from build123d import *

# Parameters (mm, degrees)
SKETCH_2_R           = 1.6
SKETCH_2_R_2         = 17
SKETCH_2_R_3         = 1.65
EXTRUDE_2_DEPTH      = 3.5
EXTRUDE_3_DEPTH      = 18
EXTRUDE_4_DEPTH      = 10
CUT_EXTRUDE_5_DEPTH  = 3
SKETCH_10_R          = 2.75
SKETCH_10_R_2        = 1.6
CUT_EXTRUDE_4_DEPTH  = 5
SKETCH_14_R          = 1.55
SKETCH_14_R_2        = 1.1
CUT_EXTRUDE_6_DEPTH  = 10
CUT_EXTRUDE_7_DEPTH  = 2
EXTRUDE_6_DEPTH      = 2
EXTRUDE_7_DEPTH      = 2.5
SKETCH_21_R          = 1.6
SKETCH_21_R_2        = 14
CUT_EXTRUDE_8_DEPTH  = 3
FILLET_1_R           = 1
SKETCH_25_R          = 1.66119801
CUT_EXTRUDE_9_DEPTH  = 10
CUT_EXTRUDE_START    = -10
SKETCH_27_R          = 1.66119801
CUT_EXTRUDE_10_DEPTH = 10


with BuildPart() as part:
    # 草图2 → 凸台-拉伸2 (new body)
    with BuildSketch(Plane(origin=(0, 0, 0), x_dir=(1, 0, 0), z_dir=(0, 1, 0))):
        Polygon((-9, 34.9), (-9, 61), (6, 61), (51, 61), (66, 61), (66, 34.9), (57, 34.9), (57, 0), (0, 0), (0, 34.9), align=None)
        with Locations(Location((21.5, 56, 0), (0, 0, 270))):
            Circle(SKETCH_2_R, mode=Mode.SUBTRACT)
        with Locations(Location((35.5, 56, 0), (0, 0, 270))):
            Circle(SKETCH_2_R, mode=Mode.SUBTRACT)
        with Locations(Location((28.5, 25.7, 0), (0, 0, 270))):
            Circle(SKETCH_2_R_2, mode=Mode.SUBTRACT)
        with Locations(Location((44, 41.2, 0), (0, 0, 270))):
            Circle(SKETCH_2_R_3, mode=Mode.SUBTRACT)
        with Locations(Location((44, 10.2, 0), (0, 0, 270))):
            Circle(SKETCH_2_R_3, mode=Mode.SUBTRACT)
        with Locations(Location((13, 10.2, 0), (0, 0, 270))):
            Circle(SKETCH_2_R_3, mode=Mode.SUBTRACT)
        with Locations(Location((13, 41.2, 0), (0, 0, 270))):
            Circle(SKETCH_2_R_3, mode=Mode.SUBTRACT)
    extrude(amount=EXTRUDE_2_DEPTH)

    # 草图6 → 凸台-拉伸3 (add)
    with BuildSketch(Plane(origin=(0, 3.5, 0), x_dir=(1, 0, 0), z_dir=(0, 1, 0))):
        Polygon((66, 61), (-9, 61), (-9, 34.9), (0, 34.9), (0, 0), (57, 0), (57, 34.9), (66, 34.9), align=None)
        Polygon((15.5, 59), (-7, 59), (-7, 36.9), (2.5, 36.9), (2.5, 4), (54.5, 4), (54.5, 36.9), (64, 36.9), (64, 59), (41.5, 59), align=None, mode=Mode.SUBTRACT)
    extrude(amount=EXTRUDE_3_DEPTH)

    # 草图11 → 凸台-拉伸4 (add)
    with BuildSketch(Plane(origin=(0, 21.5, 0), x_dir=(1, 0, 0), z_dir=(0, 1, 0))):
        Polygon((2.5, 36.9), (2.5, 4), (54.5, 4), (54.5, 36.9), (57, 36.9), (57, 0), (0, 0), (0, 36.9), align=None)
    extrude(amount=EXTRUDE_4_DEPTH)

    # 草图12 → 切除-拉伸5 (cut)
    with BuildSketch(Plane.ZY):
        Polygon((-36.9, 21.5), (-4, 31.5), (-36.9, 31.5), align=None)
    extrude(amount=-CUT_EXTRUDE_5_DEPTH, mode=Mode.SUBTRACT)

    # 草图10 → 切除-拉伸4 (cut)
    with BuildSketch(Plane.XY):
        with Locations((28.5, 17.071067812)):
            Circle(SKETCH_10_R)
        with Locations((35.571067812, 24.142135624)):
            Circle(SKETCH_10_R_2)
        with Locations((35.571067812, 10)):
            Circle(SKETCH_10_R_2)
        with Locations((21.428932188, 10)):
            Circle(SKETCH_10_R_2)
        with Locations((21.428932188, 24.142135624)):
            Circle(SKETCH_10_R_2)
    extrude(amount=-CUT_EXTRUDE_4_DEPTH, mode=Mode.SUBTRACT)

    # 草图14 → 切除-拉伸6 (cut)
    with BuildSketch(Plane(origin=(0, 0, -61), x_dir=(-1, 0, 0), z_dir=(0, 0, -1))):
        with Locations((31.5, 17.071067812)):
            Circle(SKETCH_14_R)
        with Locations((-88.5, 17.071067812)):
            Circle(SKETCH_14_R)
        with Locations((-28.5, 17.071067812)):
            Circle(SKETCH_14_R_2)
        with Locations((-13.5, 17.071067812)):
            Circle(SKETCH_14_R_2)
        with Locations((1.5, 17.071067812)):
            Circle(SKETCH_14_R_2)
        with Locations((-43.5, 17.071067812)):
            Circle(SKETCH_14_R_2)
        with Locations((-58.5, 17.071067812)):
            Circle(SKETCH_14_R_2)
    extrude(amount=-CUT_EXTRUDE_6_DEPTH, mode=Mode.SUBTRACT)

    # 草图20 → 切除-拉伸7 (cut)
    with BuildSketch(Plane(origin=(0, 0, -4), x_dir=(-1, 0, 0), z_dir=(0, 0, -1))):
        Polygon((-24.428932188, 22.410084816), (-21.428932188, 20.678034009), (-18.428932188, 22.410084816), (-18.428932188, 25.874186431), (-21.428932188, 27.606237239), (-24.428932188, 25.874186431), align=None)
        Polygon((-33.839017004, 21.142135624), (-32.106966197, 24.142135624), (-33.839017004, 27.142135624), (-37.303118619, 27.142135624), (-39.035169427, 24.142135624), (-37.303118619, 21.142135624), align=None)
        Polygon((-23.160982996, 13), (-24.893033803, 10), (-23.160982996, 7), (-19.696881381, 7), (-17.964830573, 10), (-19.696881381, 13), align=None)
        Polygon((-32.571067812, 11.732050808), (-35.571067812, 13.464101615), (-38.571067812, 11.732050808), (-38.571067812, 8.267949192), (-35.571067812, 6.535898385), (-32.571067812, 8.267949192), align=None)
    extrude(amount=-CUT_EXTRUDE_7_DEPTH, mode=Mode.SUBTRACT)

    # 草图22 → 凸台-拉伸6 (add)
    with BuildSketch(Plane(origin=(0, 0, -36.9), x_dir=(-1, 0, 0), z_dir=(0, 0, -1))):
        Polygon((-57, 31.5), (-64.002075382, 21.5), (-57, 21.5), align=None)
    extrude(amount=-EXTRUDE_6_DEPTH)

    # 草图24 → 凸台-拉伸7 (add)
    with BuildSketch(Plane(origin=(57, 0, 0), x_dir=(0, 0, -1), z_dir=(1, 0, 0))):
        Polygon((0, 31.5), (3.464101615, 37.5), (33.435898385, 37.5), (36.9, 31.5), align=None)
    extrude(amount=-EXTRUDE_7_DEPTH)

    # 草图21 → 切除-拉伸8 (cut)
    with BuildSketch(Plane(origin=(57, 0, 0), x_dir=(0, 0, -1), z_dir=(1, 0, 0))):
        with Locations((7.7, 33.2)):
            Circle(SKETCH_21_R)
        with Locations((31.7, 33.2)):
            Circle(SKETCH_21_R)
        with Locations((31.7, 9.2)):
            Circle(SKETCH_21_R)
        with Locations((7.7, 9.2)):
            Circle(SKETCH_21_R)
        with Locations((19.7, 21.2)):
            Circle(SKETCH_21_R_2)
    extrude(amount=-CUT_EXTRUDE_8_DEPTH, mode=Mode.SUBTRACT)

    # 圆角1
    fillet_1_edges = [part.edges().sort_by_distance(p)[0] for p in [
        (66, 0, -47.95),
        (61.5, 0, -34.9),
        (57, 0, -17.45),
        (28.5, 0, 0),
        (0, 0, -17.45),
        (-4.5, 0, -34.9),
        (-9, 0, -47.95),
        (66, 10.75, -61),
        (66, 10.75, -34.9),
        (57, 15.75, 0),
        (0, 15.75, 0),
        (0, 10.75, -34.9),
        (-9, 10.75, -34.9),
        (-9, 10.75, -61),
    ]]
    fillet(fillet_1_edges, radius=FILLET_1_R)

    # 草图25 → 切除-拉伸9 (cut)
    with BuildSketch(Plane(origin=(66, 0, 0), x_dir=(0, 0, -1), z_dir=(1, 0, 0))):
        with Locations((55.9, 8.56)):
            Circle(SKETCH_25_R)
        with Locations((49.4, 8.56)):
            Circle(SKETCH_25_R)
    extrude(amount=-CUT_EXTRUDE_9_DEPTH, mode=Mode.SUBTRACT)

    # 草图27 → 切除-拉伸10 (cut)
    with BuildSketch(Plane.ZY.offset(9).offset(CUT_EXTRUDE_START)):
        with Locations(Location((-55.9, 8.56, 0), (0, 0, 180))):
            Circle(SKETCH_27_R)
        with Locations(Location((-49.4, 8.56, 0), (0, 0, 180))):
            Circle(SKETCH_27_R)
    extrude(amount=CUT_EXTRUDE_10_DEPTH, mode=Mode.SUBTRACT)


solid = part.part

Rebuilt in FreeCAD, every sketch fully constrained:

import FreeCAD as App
import Part
import Sketcher
Q = App.Units.Quantity


def edges_at(feature, points):
    """Names of the edges that pass closest to the given points."""
    edges = feature.Shape.Edges
    near = lambda p: min(range(len(edges)), key=lambda i: edges[i].distToShape(Part.Vertex(*p))[0])
    return sorted({f"Edge{near(p) + 1}" for p in points})

doc = App.newDocument("Part")
params = doc.addObject("Spreadsheet::Sheet", "Params")
for row, (alias, value) in enumerate([
    ("sketch1_diameter", "34 mm"),
    ("sketch1_diameter2", "3.3 mm"),
    ("sketch1_diameter3", "3.2 mm"),
    ("sketch1_width", "9 mm"),
    ("sketch1_width2", "57 mm"),
    ("pad1_length", "3.5 mm"),
    ("sketch2_width", "75 mm"),
    ("sketch2_width2", "9 mm"),
    ("sketch2_width3", "71 mm"),
    ("sketch2_width4", "52 mm"),
    ("sketch2_height", "26.1 mm"),
    ("pad2_length", "18 mm"),
    ("sketch3_width", "57 mm"),
    ("sketch3_width2", "52 mm"),
    ("sketch3_height", "32.9 mm"),
    ("sketch3_height2", "36.9 mm"),
    ("pad3_length", "10 mm"),
    ("sketch4_width", "10 mm"),
    ("sketch4_height", "32.9 mm"),
    ("pocket1_length", "3 mm"),
    ("sketch5_diameter", "5.5 mm"),
    ("sketch5_diameter2", "3.2 mm"),
    ("pocket2_length", "5 mm"),
    ("sketch6_diameter", "3.1 mm"),
    ("sketch6_diameter2", "2.2 mm"),
    ("pocket3_length", "10 mm"),
    ("pocket4_length", "2 mm"),
    ("sketch8_height", "10 mm"),
    ("pad4_length", "2 mm"),
    ("sketch9_height", "36.9 mm"),
    ("pad5_length", "2.5 mm"),
    ("sketch10_diameter", "28 mm"),
    ("sketch10_diameter2", "3.2 mm"),
    ("pocket5_length", "3 mm"),
    ("fillet_radius", "1 mm"),
    ("pocket6_length", "10 mm"),
    ("pocket7_length", "10 mm"),
], start=1):
    params.set(f"A{row}", alias)
    params.set(f"B{row}", "=" + value)
    params.setAlias(f"B{row}", alias)

body = doc.addObject("PartDesign::Body", "Body")

# Sketch on XZ plane
sketch1 = body.newObject("Sketcher::SketchObject", "Sketch")
sketch1.AttachmentSupport = (doc.getObject("XZ_Plane"), [""])
sketch1.MapMode = "FlatFace"
sketch1.addGeometry(Part.LineSegment(App.Vector(-9, -61, 0), App.Vector(-9, -34.9, 0)), False)
sketch1.addGeometry(Part.LineSegment(App.Vector(-9, -34.9, 0), App.Vector(0, -34.9, 0)), False)
sketch1.addGeometry(Part.LineSegment(App.Vector(0, -34.9, 0), App.Vector(0, 0, 0)), False)
sketch1.addGeometry(Part.LineSegment(App.Vector(0, 0, 0), App.Vector(57, 0, 0)), False)
sketch1.addGeometry(Part.LineSegment(App.Vector(57, 0, 0), App.Vector(57, -34.9, 0)), False)
sketch1.addGeometry(Part.LineSegment(App.Vector(57, -34.9, 0), App.Vector(66, -34.9, 0)), False)
sketch1.addGeometry(Part.LineSegment(App.Vector(66, -34.9, 0), App.Vector(66, -61, 0)), False)
sketch1.addGeometry(Part.LineSegment(App.Vector(66, -61, 0), App.Vector(-9, -61, 0)), False)
sketch1.addGeometry(Part.Circle(App.Vector(44, -10.2, 0), App.Vector(0, 0, 1), 1.65), False)
sketch1.addGeometry(Part.Circle(App.Vector(13, -10.2, 0), App.Vector(0, 0, 1), 1.65), False)
sketch1.addGeometry(Part.Circle(App.Vector(28.5, -25.7, 0), App.Vector(0, 0, 1), 17), False)
sketch1.addGeometry(Part.Circle(App.Vector(44, -41.2, 0), App.Vector(0, 0, 1), 1.65), False)
sketch1.addGeometry(Part.Circle(App.Vector(35.5, -56, 0), App.Vector(0, 0, 1), 1.6), False)
sketch1.addGeometry(Part.Circle(App.Vector(13, -41.2, 0), App.Vector(0, 0, 1), 1.65), False)
sketch1.addGeometry(Part.Circle(App.Vector(21.5, -56, 0), App.Vector(0, 0, 1), 1.6), False)
sketch1.addConstraint(Sketcher.Constraint("Coincident", 0, 2, 1, 1))
sketch1.addConstraint(Sketcher.Constraint("Coincident", 1, 2, 2, 1))
sketch1.addConstraint(Sketcher.Constraint("Coincident", 2, 2, 3, 1))
sketch1.addConstraint(Sketcher.Constraint("Coincident", 3, 2, 4, 1))
sketch1.addConstraint(Sketcher.Constraint("Coincident", 4, 2, 5, 1))
sketch1.addConstraint(Sketcher.Constraint("Coincident", 5, 2, 6, 1))
sketch1.addConstraint(Sketcher.Constraint("Coincident", 6, 2, 7, 1))
sketch1.addConstraint(Sketcher.Constraint("Coincident", 7, 2, 0, 1))
sketch1.addConstraint(Sketcher.Constraint("Vertical", 0))
sketch1.addConstraint(Sketcher.Constraint("Horizontal", 1))
sketch1.addConstraint(Sketcher.Constraint("Vertical", 2))
sketch1.addConstraint(Sketcher.Constraint("Horizontal", 3))
sketch1.addConstraint(Sketcher.Constraint("Vertical", 4))
sketch1.addConstraint(Sketcher.Constraint("Horizontal", 5))
sketch1.addConstraint(Sketcher.Constraint("Vertical", 6))
sketch1.addConstraint(Sketcher.Constraint("Horizontal", 7))
sketch1.addConstraint(Sketcher.Constraint("Coincident", 2, 2, -1, 1))
sketch1.addConstraint(Sketcher.Constraint("Equal", 8, 9))
sketch1.addConstraint(Sketcher.Constraint("Equal", 9, 11))
sketch1.addConstraint(Sketcher.Constraint("Equal", 11, 13))
sketch1.addConstraint(Sketcher.Constraint("Equal", 12, 14))
sketch1.addConstraint(Sketcher.Constraint("Horizontal", 8, 3, 9, 3))
sketch1.addConstraint(Sketcher.Constraint("Horizontal", 11, 3, 13, 3))
sketch1.addConstraint(Sketcher.Constraint("Horizontal", 12, 3, 14, 3))
sketch1.addConstraint(Sketcher.Constraint("Horizontal", 1, 2, 4, 2))
sketch1.addConstraint(Sketcher.Constraint("Vertical", 8, 3, 11, 3))
sketch1.addConstraint(Sketcher.Constraint("Vertical", 9, 3, 13, 3))
sketch1.addConstraint(Sketcher.Constraint("Equal", 1, 5))
sketch1.addConstraint(Sketcher.Constraint("Diameter", 10, Q("34 mm")))
sketch1.addConstraint(Sketcher.Constraint("Diameter", 8, Q("3.3 mm")))
sketch1.addConstraint(Sketcher.Constraint("Diameter", 12, Q("3.2 mm")))
sketch1.addConstraint(Sketcher.Constraint("DistanceX", 1, 1, 1, 2, Q("9 mm")))
sketch1.addConstraint(Sketcher.Constraint("DistanceX", 3, 1, 3, 2, Q("57 mm")))
sketch1.addConstraint(Sketcher.Constraint("DistanceY", 0, 1, 0, 2, Q("26.1 mm")))
sketch1.addConstraint(Sketcher.Constraint("DistanceY", 2, 1, 2, 2, Q("34.9 mm")))
sketch1.addConstraint(Sketcher.Constraint("DistanceX", -1, 1, 8, 3, Q("44 mm")))
sketch1.addConstraint(Sketcher.Constraint("DistanceX", -1, 1, 9, 3, Q("13 mm")))
sketch1.addConstraint(Sketcher.Constraint("DistanceY", 12, 3, -1, 1, Q("56 mm")))
sketch1.addConstraint(Sketcher.Constraint("DistanceY", 11, 3, 8, 3, Q("31 mm")))
sketch1.addConstraint(Sketcher.Constraint("DistanceX", 10, 3, 12, 3, Q("7 mm")))
sketch1.addConstraint(Sketcher.Constraint("DistanceX", 14, 3, 12, 3, Q("14 mm")))
sketch1.addConstraint(Sketcher.Constraint("DistanceY", 8, 3, -1, 1, Q("10.2 mm")))
sketch1.addConstraint(Sketcher.Constraint("DistanceX", -1, 1, 10, 3, Q("28.5 mm")))
sketch1.addConstraint(Sketcher.Constraint("DistanceY", 10, 3, -1, 1, Q("25.7 mm")))
sketch1.setExpression("Constraints[28]", "Params.sketch1_diameter")
sketch1.setExpression("Constraints[29]", "Params.sketch1_diameter2")
sketch1.setExpression("Constraints[30]", "Params.sketch1_diameter3")
sketch1.setExpression("Constraints[31]", "Params.sketch1_width")
sketch1.setExpression("Constraints[32]", "Params.sketch1_width2")
pad1 = body.newObject("PartDesign::Pad", "Pad")
pad1.Profile = sketch1
pad1.setExpression("Length", "Params.pad1_length")
pad1.Reversed = True

# Sketch on XZ plane
sketch2 = body.newObject("Sketcher::SketchObject", "Sketch001")
sketch2.AttachmentSupport = (doc.getObject("XZ_Plane"), [""])
sketch2.MapMode = "FlatFace"
sketch2.AttachmentOffset = App.Placement(App.Vector(0, 0, -3.5), App.Rotation())
sketch2.addGeometry(Part.LineSegment(App.Vector(66, -61, 0), App.Vector(-9, -61, 0)), False)
sketch2.addGeometry(Part.LineSegment(App.Vector(-9, -61, 0), App.Vector(-9, -34.9, 0)), False)
sketch2.addGeometry(Part.LineSegment(App.Vector(-9, -34.9, 0), App.Vector(0, -34.9, 0)), False)
sketch2.addGeometry(Part.LineSegment(App.Vector(0, -34.9, 0), App.Vector(0, 0, 0)), False)
sketch2.addGeometry(Part.LineSegment(App.Vector(0, 0, 0), App.Vector(57, 0, 0)), False)
sketch2.addGeometry(Part.LineSegment(App.Vector(57, 0, 0), App.Vector(57, -34.9, 0)), False)
sketch2.addGeometry(Part.LineSegment(App.Vector(57, -34.9, 0), App.Vector(66, -34.9, 0)), False)
sketch2.addGeometry(Part.LineSegment(App.Vector(66, -34.9, 0), App.Vector(66, -61, 0)), False)
sketch2.addGeometry(Part.LineSegment(App.Vector(-7, -59, 0), App.Vector(64, -59, 0)), False)
sketch2.addGeometry(Part.LineSegment(App.Vector(64, -59, 0), App.Vector(64, -36.9, 0)), False)
sketch2.addGeometry(Part.LineSegment(App.Vector(64, -36.9, 0), App.Vector(54.5, -36.9, 0)), False)
sketch2.addGeometry(Part.LineSegment(App.Vector(54.5, -36.9, 0), App.Vector(54.5, -4, 0)), False)
sketch2.addGeometry(Part.LineSegment(App.Vector(54.5, -4, 0), App.Vector(2.5, -4, 0)), False)
sketch2.addGeometry(Part.LineSegment(App.Vector(2.5, -4, 0), App.Vector(2.5, -36.9, 0)), False)
sketch2.addGeometry(Part.LineSegment(App.Vector(2.5, -36.9, 0), App.Vector(-7, -36.9, 0)), False)
sketch2.addGeometry(Part.LineSegment(App.Vector(-7, -36.9, 0), App.Vector(-7, -59, 0)), False)
sketch2.addConstraint(Sketcher.Constraint("Coincident", 0, 2, 1, 1))
sketch2.addConstraint(Sketcher.Constraint("Coincident", 1, 2, 2, 1))
sketch2.addConstraint(Sketcher.Constraint("Coincident", 2, 2, 3, 1))
sketch2.addConstraint(Sketcher.Constraint("Coincident", 3, 2, 4, 1))
sketch2.addConstraint(Sketcher.Constraint("Coincident", 4, 2, 5, 1))
sketch2.addConstraint(Sketcher.Constraint("Coincident", 5, 2, 6, 1))
sketch2.addConstraint(Sketcher.Constraint("Coincident", 6, 2, 7, 1))
sketch2.addConstraint(Sketcher.Constraint("Coincident", 7, 2, 0, 1))
sketch2.addConstraint(Sketcher.Constraint("Coincident", 8, 2, 9, 1))
sketch2.addConstraint(Sketcher.Constraint("Coincident", 9, 2, 10, 1))
sketch2.addConstraint(Sketcher.Constraint("Coincident", 10, 2, 11, 1))
sketch2.addConstraint(Sketcher.Constraint("Coincident", 11, 2, 12, 1))
sketch2.addConstraint(Sketcher.Constraint("Coincident", 12, 2, 13, 1))
sketch2.addConstraint(Sketcher.Constraint("Coincident", 13, 2, 14, 1))
sketch2.addConstraint(Sketcher.Constraint("Coincident", 14, 2, 15, 1))
sketch2.addConstraint(Sketcher.Constraint("Coincident", 15, 2, 8, 1))
sketch2.addConstraint(Sketcher.Constraint("Horizontal", 0))
sketch2.addConstraint(Sketcher.Constraint("Vertical", 1))
sketch2.addConstraint(Sketcher.Constraint("Horizontal", 2))
sketch2.addConstraint(Sketcher.Constraint("Vertical", 3))
sketch2.addConstraint(Sketcher.Constraint("Horizontal", 4))
sketch2.addConstraint(Sketcher.Constraint("Vertical", 5))
sketch2.addConstraint(Sketcher.Constraint("Horizontal", 6))
sketch2.addConstraint(Sketcher.Constraint("Vertical", 7))
sketch2.addConstraint(Sketcher.Constraint("Horizontal", 8))
sketch2.addConstraint(Sketcher.Constraint("Vertical", 9))
sketch2.addConstraint(Sketcher.Constraint("Horizontal", 10))
sketch2.addConstraint(Sketcher.Constraint("Vertical", 11))
sketch2.addConstraint(Sketcher.Constraint("Horizontal", 12))
sketch2.addConstraint(Sketcher.Constraint("Vertical", 13))
sketch2.addConstraint(Sketcher.Constraint("Horizontal", 14))
sketch2.addConstraint(Sketcher.Constraint("Vertical", 15))
sketch2.addConstraint(Sketcher.Constraint("Coincident", 3, 2, -1, 1))
sketch2.addConstraint(Sketcher.Constraint("Horizontal", 2, 2, 5, 2))
sketch2.addConstraint(Sketcher.Constraint("Horizontal", 10, 2, 13, 2))
sketch2.addConstraint(Sketcher.Constraint("Equal", 2, 6))
sketch2.addConstraint(Sketcher.Constraint("Equal", 10, 14))
sketch2.addConstraint(Sketcher.Constraint("DistanceX", 0, 2, 0, 1, Q("75 mm")))
sketch2.addConstraint(Sketcher.Constraint("DistanceX", 2, 1, 2, 2, Q("9 mm")))
sketch2.addConstraint(Sketcher.Constraint("DistanceX", 8, 1, 8, 2, Q("71 mm")))
sketch2.addConstraint(Sketcher.Constraint("DistanceX", 12, 2, 12, 1, Q("52 mm")))
sketch2.addConstraint(Sketcher.Constraint("DistanceY", 1, 1, 1, 2, Q("26.1 mm")))
sketch2.addConstraint(Sketcher.Constraint("DistanceY", 3, 1, 3, 2, Q("34.9 mm")))
sketch2.addConstraint(Sketcher.Constraint("DistanceY", 9, 1, 9, 2, Q("22.1 mm")))
sketch2.addConstraint(Sketcher.Constraint("DistanceY", 11, 1, 11, 2, Q("32.9 mm")))
sketch2.addConstraint(Sketcher.Constraint("DistanceX", -1, 1, 8, 2, Q("64 mm")))
sketch2.addConstraint(Sketcher.Constraint("DistanceY", 8, 2, -1, 1, Q("59 mm")))
sketch2.setExpression("Constraints[37]", "Params.sketch2_width")
sketch2.setExpression("Constraints[38]", "Params.sketch2_width2")
sketch2.setExpression("Constraints[39]", "Params.sketch2_width3")
sketch2.setExpression("Constraints[40]", "Params.sketch2_width4")
sketch2.setExpression("Constraints[41]", "Params.sketch2_height")
pad2 = body.newObject("PartDesign::Pad", "Pad001")
pad2.Profile = sketch2
pad2.setExpression("Length", "Params.pad2_length")
pad2.Reversed = True

# Sketch on XZ plane
sketch3 = body.newObject("Sketcher::SketchObject", "Sketch002")
sketch3.AttachmentSupport = (doc.getObject("XZ_Plane"), [""])
sketch3.MapMode = "FlatFace"
sketch3.AttachmentOffset = App.Placement(App.Vector(0, 0, -21.5), App.Rotation())
sketch3.addGeometry(Part.LineSegment(App.Vector(2.5, -4, 0), App.Vector(2.5, -36.9, 0)), False)
sketch3.addGeometry(Part.LineSegment(App.Vector(2.5, -36.9, 0), App.Vector(0, -36.9, 0)), False)
sketch3.addGeometry(Part.LineSegment(App.Vector(0, -36.9, 0), App.Vector(0, 0, 0)), False)
sketch3.addGeometry(Part.LineSegment(App.Vector(0, 0, 0), App.Vector(57, 0, 0)), False)
sketch3.addGeometry(Part.LineSegment(App.Vector(57, 0, 0), App.Vector(57, -36.9, 0)), False)
sketch3.addGeometry(Part.LineSegment(App.Vector(57, -36.9, 0), App.Vector(54.5, -36.9, 0)), False)
sketch3.addGeometry(Part.LineSegment(App.Vector(54.5, -36.9, 0), App.Vector(54.5, -4, 0)), False)
sketch3.addGeometry(Part.LineSegment(App.Vector(54.5, -4, 0), App.Vector(2.5, -4, 0)), False)
sketch3.addConstraint(Sketcher.Constraint("Coincident", 0, 2, 1, 1))
sketch3.addConstraint(Sketcher.Constraint("Coincident", 1, 2, 2, 1))
sketch3.addConstraint(Sketcher.Constraint("Coincident", 2, 2, 3, 1))
sketch3.addConstraint(Sketcher.Constraint("Coincident", 3, 2, 4, 1))
sketch3.addConstraint(Sketcher.Constraint("Coincident", 4, 2, 5, 1))
sketch3.addConstraint(Sketcher.Constraint("Coincident", 5, 2, 6, 1))
sketch3.addConstraint(Sketcher.Constraint("Coincident", 6, 2, 7, 1))
sketch3.addConstraint(Sketcher.Constraint("Coincident", 7, 2, 0, 1))
sketch3.addConstraint(Sketcher.Constraint("Vertical", 0))
sketch3.addConstraint(Sketcher.Constraint("Horizontal", 1))
sketch3.addConstraint(Sketcher.Constraint("Vertical", 2))
sketch3.addConstraint(Sketcher.Constraint("Horizontal", 3))
sketch3.addConstraint(Sketcher.Constraint("Vertical", 4))
sketch3.addConstraint(Sketcher.Constraint("Horizontal", 5))
sketch3.addConstraint(Sketcher.Constraint("Vertical", 6))
sketch3.addConstraint(Sketcher.Constraint("Horizontal", 7))
sketch3.addConstraint(Sketcher.Constraint("Coincident", 2, 2, -1, 1))
sketch3.addConstraint(Sketcher.Constraint("Horizontal", 1, 2, 4, 2))
sketch3.addConstraint(Sketcher.Constraint("Equal", 1, 5))
sketch3.addConstraint(Sketcher.Constraint("DistanceX", 3, 1, 3, 2, Q("57 mm")))
sketch3.addConstraint(Sketcher.Constraint("DistanceX", 7, 2, 7, 1, Q("52 mm")))
sketch3.addConstraint(Sketcher.Constraint("DistanceY", 0, 2, 0, 1, Q("32.9 mm")))
sketch3.addConstraint(Sketcher.Constraint("DistanceY", 2, 1, 2, 2, Q("36.9 mm")))
sketch3.setExpression("Constraints[19]", "Params.sketch3_width")
sketch3.setExpression("Constraints[20]", "Params.sketch3_width2")
sketch3.setExpression("Constraints[21]", "Params.sketch3_height")
sketch3.setExpression("Constraints[22]", "Params.sketch3_height2")
pad3 = body.newObject("PartDesign::Pad", "Pad002")
pad3.Profile = sketch3
pad3.setExpression("Length", "Params.pad3_length")
pad3.Reversed = True

# Sketch on YZ plane
sketch4 = body.newObject("Sketcher::SketchObject", "Sketch003")
sketch4.AttachmentSupport = (doc.getObject("YZ_Plane"), [""])
sketch4.MapMode = "FlatFace"
sketch4.addGeometry(Part.LineSegment(App.Vector(21.5, -36.9, 0), App.Vector(31.5, -4, 0)), False)
sketch4.addGeometry(Part.LineSegment(App.Vector(31.5, -4, 0), App.Vector(31.5, -36.9, 0)), False)
sketch4.addGeometry(Part.LineSegment(App.Vector(31.5, -36.9, 0), App.Vector(21.5, -36.9, 0)), False)
sketch4.addConstraint(Sketcher.Constraint("Coincident", 0, 2, 1, 1))
sketch4.addConstraint(Sketcher.Constraint("Coincident", 1, 2, 2, 1))
sketch4.addConstraint(Sketcher.Constraint("Coincident", 2, 2, 0, 1))
sketch4.addConstraint(Sketcher.Constraint("Vertical", 1))
sketch4.addConstraint(Sketcher.Constraint("Horizontal", 2))
sketch4.addConstraint(Sketcher.Constraint("DistanceX", 2, 2, 2, 1, Q("10 mm")))
sketch4.addConstraint(Sketcher.Constraint("DistanceY", 1, 2, 1, 1, Q("32.9 mm")))
sketch4.addConstraint(Sketcher.Constraint("DistanceY", 0, 2, -1, 1, Q("4 mm")))
sketch4.addConstraint(Sketcher.Constraint("DistanceX", -1, 1, 0, 2, Q("31.5 mm")))
sketch4.setExpression("Constraints[5]", "Params.sketch4_width")
sketch4.setExpression("Constraints[6]", "Params.sketch4_height")
pocket1 = body.newObject("PartDesign::Pocket", "Pocket")
pocket1.Profile = sketch4
pocket1.setExpression("Length", "Params.pocket1_length")
pocket1.Reversed = True

# Sketch on XY plane
sketch5 = body.newObject("Sketcher::SketchObject", "Sketch004")
sketch5.AttachmentSupport = (doc.getObject("XY_Plane"), [""])
sketch5.MapMode = "FlatFace"
sketch5.addGeometry(Part.Circle(App.Vector(28.5, 17.071068, 0), App.Vector(0, 0, 1), 2.75), False)
sketch5.addGeometry(Part.Circle(App.Vector(35.571068, 24.142136, 0), App.Vector(0, 0, 1), 1.6), False)
sketch5.addGeometry(Part.Circle(App.Vector(35.571068, 10, 0), App.Vector(0, 0, 1), 1.6), False)
sketch5.addGeometry(Part.Circle(App.Vector(21.428932, 10, 0), App.Vector(0, 0, 1), 1.6), False)
sketch5.addGeometry(Part.Circle(App.Vector(21.428932, 24.142136, 0), App.Vector(0, 0, 1), 1.6), False)
sketch5.addConstraint(Sketcher.Constraint("Equal", 1, 2))
sketch5.addConstraint(Sketcher.Constraint("Equal", 2, 3))
sketch5.addConstraint(Sketcher.Constraint("Equal", 3, 4))
sketch5.addConstraint(Sketcher.Constraint("Horizontal", 2, 3, 3, 3))
sketch5.addConstraint(Sketcher.Constraint("Horizontal", 1, 3, 4, 3))
sketch5.addConstraint(Sketcher.Constraint("Vertical", 1, 3, 2, 3))
sketch5.addConstraint(Sketcher.Constraint("Vertical", 3, 3, 4, 3))
sketch5.addConstraint(Sketcher.Constraint("Diameter", 0, Q("5.5 mm")))
sketch5.addConstraint(Sketcher.Constraint("Diameter", 1, Q("3.2 mm")))
sketch5.addConstraint(Sketcher.Constraint("DistanceY", -1, 1, 2, 3, Q("10 mm")))
sketch5.addConstraint(Sketcher.Constraint("DistanceX", -1, 1, 0, 3, Q("28.5 mm")))
sketch5.addConstraint(Sketcher.Constraint("DistanceY", -1, 1, 0, 3, Q("17.071068 mm")))
sketch5.addConstraint(Sketcher.Constraint("DistanceX", -1, 1, 1, 3, Q("35.571068 mm")))
sketch5.addConstraint(Sketcher.Constraint("DistanceY", -1, 1, 1, 3, Q("24.142136 mm")))
sketch5.addConstraint(Sketcher.Constraint("DistanceX", -1, 1, 3, 3, Q("21.428932 mm")))
sketch5.setExpression("Constraints[7]", "Params.sketch5_diameter")
sketch5.setExpression("Constraints[8]", "Params.sketch5_diameter2")
pocket2 = body.newObject("PartDesign::Pocket", "Pocket001")
pocket2.Profile = sketch5
pocket2.setExpression("Length", "Params.pocket2_length")

# Sketch on XY plane
sketch6 = body.newObject("Sketcher::SketchObject", "Sketch005")
sketch6.AttachmentSupport = (doc.getObject("XY_Plane"), [""])
sketch6.MapMode = "FlatFace"
sketch6.AttachmentOffset = App.Placement(App.Vector(0, 0, -61), App.Rotation())
sketch6.addGeometry(Part.Circle(App.Vector(-31.5, 17.071068, 0), App.Vector(0, 0, 1), 1.55), False)
sketch6.addGeometry(Part.Circle(App.Vector(88.5, 17.071068, 0), App.Vector(0, 0, 1), 1.55), False)
sketch6.addGeometry(Part.Circle(App.Vector(28.5, 17.071068, 0), App.Vector(0, 0, 1), 1.1), False)
sketch6.addGeometry(Part.Circle(App.Vector(13.5, 17.071068, 0), App.Vector(0, 0, 1), 1.1), False)
sketch6.addGeometry(Part.Circle(App.Vector(-1.5, 17.071068, 0), App.Vector(0, 0, 1), 1.1), False)
sketch6.addGeometry(Part.Circle(App.Vector(43.5, 17.071068, 0), App.Vector(0, 0, 1), 1.1), False)
sketch6.addGeometry(Part.Circle(App.Vector(58.5, 17.071068, 0), App.Vector(0, 0, 1), 1.1), False)
sketch6.addConstraint(Sketcher.Constraint("Equal", 0, 1))
sketch6.addConstraint(Sketcher.Constraint("Equal", 2, 3))
sketch6.addConstraint(Sketcher.Constraint("Equal", 3, 4))
sketch6.addConstraint(Sketcher.Constraint("Equal", 4, 5))
sketch6.addConstraint(Sketcher.Constraint("Equal", 5, 6))
sketch6.addConstraint(Sketcher.Constraint("Horizontal", 0, 3, 1, 3))
sketch6.addConstraint(Sketcher.Constraint("Horizontal", 1, 3, 2, 3))
sketch6.addConstraint(Sketcher.Constraint("Horizontal", 2, 3, 3, 3))
sketch6.addConstraint(Sketcher.Constraint("Horizontal", 3, 3, 4, 3))
sketch6.addConstraint(Sketcher.Constraint("Horizontal", 4, 3, 5, 3))
sketch6.addConstraint(Sketcher.Constraint("Horizontal", 5, 3, 6, 3))
sketch6.addConstraint(Sketcher.Constraint("Diameter", 0, Q("3.1 mm")))
sketch6.addConstraint(Sketcher.Constraint("Diameter", 2, Q("2.2 mm")))
sketch6.addConstraint(Sketcher.Constraint("DistanceX", 0, 3, 1, 3, Q("120 mm")))
sketch6.addConstraint(Sketcher.Constraint("DistanceX", 0, 3, 2, 3, Q("60 mm")))
sketch6.addConstraint(Sketcher.Constraint("DistanceX", 3, 3, 2, 3, Q("15 mm")))
sketch6.addConstraint(Sketcher.Constraint("DistanceX", 4, 3, 3, 3, Q("15 mm")))
sketch6.addConstraint(Sketcher.Constraint("DistanceX", 2, 3, 5, 3, Q("15 mm")))
sketch6.addConstraint(Sketcher.Constraint("DistanceX", 5, 3, 6, 3, Q("15 mm")))
sketch6.addConstraint(Sketcher.Constraint("DistanceX", 0, 3, -1, 1, Q("31.5 mm")))
sketch6.addConstraint(Sketcher.Constraint("DistanceY", -1, 1, 0, 3, Q("17.071068 mm")))
sketch6.setExpression("Constraints[11]", "Params.sketch6_diameter")
sketch6.setExpression("Constraints[12]", "Params.sketch6_diameter2")
pocket3 = body.newObject("PartDesign::Pocket", "Pocket002")
pocket3.Profile = sketch6
pocket3.setExpression("Length", "Params.pocket3_length")
pocket3.Reversed = True

# Sketch on XY plane
sketch7 = body.newObject("Sketcher::SketchObject", "Sketch006")
sketch7.AttachmentSupport = (doc.getObject("XY_Plane"), [""])
sketch7.MapMode = "FlatFace"
sketch7.AttachmentOffset = App.Placement(App.Vector(0, 0, -4), App.Rotation())
sketch7.addGeometry(Part.LineSegment(App.Vector(24.428932, 22.410085, 0), App.Vector(21.428932, 20.678034, 0)), False)
sketch7.addGeometry(Part.LineSegment(App.Vector(21.428932, 20.678034, 0), App.Vector(18.428932, 22.410085, 0)), False)
sketch7.addGeometry(Part.LineSegment(App.Vector(18.428932, 22.410085, 0), App.Vector(18.428932, 25.874186, 0)), False)
sketch7.addGeometry(Part.LineSegment(App.Vector(18.428932, 25.874186, 0), App.Vector(21.428932, 27.606237, 0)), False)
sketch7.addGeometry(Part.LineSegment(App.Vector(21.428932, 27.606237, 0), App.Vector(24.428932, 25.874186, 0)), False)
sketch7.addGeometry(Part.LineSegment(App.Vector(24.428932, 25.874186, 0), App.Vector(24.428932, 22.410085, 0)), False)
sketch7.addGeometry(Part.LineSegment(App.Vector(33.839017, 21.142136, 0), App.Vector(32.106966, 24.142136, 0)), False)
sketch7.addGeometry(Part.LineSegment(App.Vector(32.106966, 24.142136, 0), App.Vector(33.839017, 27.142136, 0)), False)
sketch7.addGeometry(Part.LineSegment(App.Vector(33.839017, 27.142136, 0), App.Vector(37.303119, 27.142136, 0)), False)
sketch7.addGeometry(Part.LineSegment(App.Vector(37.303119, 27.142136, 0), App.Vector(39.035169, 24.142136, 0)), False)
sketch7.addGeometry(Part.LineSegment(App.Vector(39.035169, 24.142136, 0), App.Vector(37.303119, 21.142136, 0)), False)
sketch7.addGeometry(Part.LineSegment(App.Vector(37.303119, 21.142136, 0), App.Vector(33.839017, 21.142136, 0)), False)
sketch7.addGeometry(Part.LineSegment(App.Vector(23.160983, 13, 0), App.Vector(24.893034, 10, 0)), False)
sketch7.addGeometry(Part.LineSegment(App.Vector(24.893034, 10, 0), App.Vector(23.160983, 7, 0)), False)
sketch7.addGeometry(Part.LineSegment(App.Vector(23.160983, 7, 0), App.Vector(19.696881, 7, 0)), False)
sketch7.addGeometry(Part.LineSegment(App.Vector(19.696881, 7, 0), App.Vector(17.964831, 10, 0)), False)
sketch7.addGeometry(Part.LineSegment(App.Vector(17.964831, 10, 0), App.Vector(19.696881, 13, 0)), False)
sketch7.addGeometry(Part.LineSegment(App.Vector(19.696881, 13, 0), App.Vector(23.160983, 13, 0)), False)
sketch7.addGeometry(Part.LineSegment(App.Vector(32.571068, 11.732051, 0), App.Vector(35.571068, 13.464102, 0)), False)
sketch7.addGeometry(Part.LineSegment(App.Vector(35.571068, 13.464102, 0), App.Vector(38.571068, 11.732051, 0)), False)
sketch7.addGeometry(Part.LineSegment(App.Vector(38.571068, 11.732051, 0), App.Vector(38.571068, 8.267949, 0)), False)
sketch7.addGeometry(Part.LineSegment(App.Vector(38.571068, 8.267949, 0), App.Vector(35.571068, 6.535898, 0)), False)
sketch7.addGeometry(Part.LineSegment(App.Vector(35.571068, 6.535898, 0), App.Vector(32.571068, 8.267949, 0)), False)
sketch7.addGeometry(Part.LineSegment(App.Vector(32.571068, 8.267949, 0), App.Vector(32.571068, 11.732051, 0)), False)
sketch7.addConstraint(Sketcher.Constraint("Coincident", 0, 2, 1, 1))
sketch7.addConstraint(Sketcher.Constraint("Coincident", 1, 2, 2, 1))
sketch7.addConstraint(Sketcher.Constraint("Coincident", 2, 2, 3, 1))
sketch7.addConstraint(Sketcher.Constraint("Coincident", 3, 2, 4, 1))
sketch7.addConstraint(Sketcher.Constraint("Coincident", 4, 2, 5, 1))
sketch7.addConstraint(Sketcher.Constraint("Coincident", 5, 2, 0, 1))
sketch7.addConstraint(Sketcher.Constraint("Coincident", 6, 2, 7, 1))
sketch7.addConstraint(Sketcher.Constraint("Coincident", 7, 2, 8, 1))
sketch7.addConstraint(Sketcher.Constraint("Coincident", 8, 2, 9, 1))
sketch7.addConstraint(Sketcher.Constraint("Coincident", 9, 2, 10, 1))
sketch7.addConstraint(Sketcher.Constraint("Coincident", 10, 2, 11, 1))
sketch7.addConstraint(Sketcher.Constraint("Coincident", 11, 2, 6, 1))
sketch7.addConstraint(Sketcher.Constraint("Coincident", 12, 2, 13, 1))
sketch7.addConstraint(Sketcher.Constraint("Coincident", 13, 2, 14, 1))
sketch7.addConstraint(Sketcher.Constraint("Coincident", 14, 2, 15, 1))
sketch7.addConstraint(Sketcher.Constraint("Coincident", 15, 2, 16, 1))
sketch7.addConstraint(Sketcher.Constraint("Coincident", 16, 2, 17, 1))
sketch7.addConstraint(Sketcher.Constraint("Coincident", 17, 2, 12, 1))
sketch7.addConstraint(Sketcher.Constraint("Coincident", 18, 2, 19, 1))
sketch7.addConstraint(Sketcher.Constraint("Coincident", 19, 2, 20, 1))
sketch7.addConstraint(Sketcher.Constraint("Coincident", 20, 2, 21, 1))
sketch7.addConstraint(Sketcher.Constraint("Coincident", 21, 2, 22, 1))
sketch7.addConstraint(Sketcher.Constraint("Coincident", 22, 2, 23, 1))
sketch7.addConstraint(Sketcher.Constraint("Coincident", 23, 2, 18, 1))
sketch7.addConstraint(Sketcher.Constraint("Vertical", 2))
sketch7.addConstraint(Sketcher.Constraint("Vertical", 5))
sketch7.addConstraint(Sketcher.Constraint("Horizontal", 8))
sketch7.addConstraint(Sketcher.Constraint("Horizontal", 11))
sketch7.addConstraint(Sketcher.Constraint("Horizontal", 14))
sketch7.addConstraint(Sketcher.Constraint("Horizontal", 17))
sketch7.addConstraint(Sketcher.Constraint("Vertical", 20))
sketch7.addConstraint(Sketcher.Constraint("Vertical", 23))
sketch7.addConstraint(Sketcher.Constraint("Parallel", 0, 3))
sketch7.addConstraint(Sketcher.Constraint("Parallel", 1, 4))
sketch7.addConstraint(Sketcher.Constraint("Perpendicular", 3, 6))
sketch7.addConstraint(Sketcher.Constraint("Perpendicular", 4, 7))
sketch7.addConstraint(Sketcher.Constraint("Parallel", 6, 9))
sketch7.addConstraint(Sketcher.Constraint("Parallel", 7, 10))
sketch7.addConstraint(Sketcher.Constraint("Parallel", 9, 12))
sketch7.addConstraint(Sketcher.Constraint("Parallel", 10, 13))
sketch7.addConstraint(Sketcher.Constraint("Parallel", 12, 15))
sketch7.addConstraint(Sketcher.Constraint("Parallel", 13, 16))
sketch7.addConstraint(Sketcher.Constraint("Perpendicular", 15, 18))
sketch7.addConstraint(Sketcher.Constraint("Perpendicular", 16, 19))
sketch7.addConstraint(Sketcher.Constraint("Parallel", 18, 21))
sketch7.addConstraint(Sketcher.Constraint("Parallel", 19, 22))
sketch7.addConstraint(Sketcher.Constraint("Horizontal", 2, 2, 4, 2))
sketch7.addConstraint(Sketcher.Constraint("Horizontal", 1, 2, 5, 2))
sketch7.addConstraint(Sketcher.Constraint("Horizontal", 6, 2, 9, 2))
sketch7.addConstraint(Sketcher.Constraint("Horizontal", 12, 2, 15, 2))
sketch7.addConstraint(Sketcher.Constraint("Horizontal", 20, 2, 22, 2))
sketch7.addConstraint(Sketcher.Constraint("Horizontal", 19, 2, 23, 2))
sketch7.addConstraint(Sketcher.Constraint("Vertical", 0, 2, 3, 2))
sketch7.addConstraint(Sketcher.Constraint("Vertical", 8, 2, 10, 2))
sketch7.addConstraint(Sketcher.Constraint("Vertical", 14, 2, 16, 2))
sketch7.addConstraint(Sketcher.Constraint("Equal", 11, 14))
sketch7.addConstraint(Sketcher.Constraint("Equal", 17, 2))
sketch7.addConstraint(Sketcher.Constraint("Equal", 5, 20))
sketch7.addConstraint(Sketcher.Constraint("Equal", 4, 6))
sketch7.addConstraint(Sketcher.Constraint("Equal", 10, 12))
sketch7.addConstraint(Sketcher.Constraint("Equal", 16, 18))
sketch7.addConstraint(Sketcher.Constraint("Angle", 0, Q("-150 deg")))
sketch7.addConstraint(Sketcher.Constraint("DistanceY", -1, 1, 12, 2, Q("10 mm")))
sketch7.addConstraint(Sketcher.Constraint("DistanceY", -1, 1, 13, 2, Q("7 mm")))
sketch7.addConstraint(Sketcher.Constraint("DistanceX", 8, 1, 8, 2, Q("3.464102 mm")))
sketch7.addConstraint(Sketcher.Constraint("DistanceY", -1, 1, 18, 2, Q("13.464102 mm")))
sketch7.addConstraint(Sketcher.Constraint("DistanceY", 6, 2, 3, 2, Q("3.464102 mm")))
sketch7.addConstraint(Sketcher.Constraint("DistanceX", 0, 2, 12, 2, Q("3.464102 mm")))
sketch7.addConstraint(Sketcher.Constraint("DistanceX", 18, 2, 9, 2, Q("3.464102 mm")))
sketch7.addConstraint(Sketcher.Constraint("DistanceX", -1, 1, 8, 2, Q("37.303119 mm")))
sketch7.addConstraint(Sketcher.Constraint("DistanceX", -1, 1, 14, 2, Q("19.696881 mm")))
sketch7.addConstraint(Sketcher.Constraint("DistanceY", -1, 1, 0, 2, Q("20.678034 mm")))
pocket4 = body.newObject("PartDesign::Pocket", "Pocket003")
pocket4.Profile = sketch7
pocket4.setExpression("Length", "Params.pocket4_length")
pocket4.Reversed = True

# Sketch on XY plane
sketch8 = body.newObject("Sketcher::SketchObject", "Sketch007")
sketch8.AttachmentSupport = (doc.getObject("XY_Plane"), [""])
sketch8.MapMode = "FlatFace"
sketch8.AttachmentOffset = App.Placement(App.Vector(0, 0, -36.9), App.Rotation())
sketch8.addGeometry(Part.LineSegment(App.Vector(57, 31.5, 0), App.Vector(64.002075, 21.5, 0)), False)
sketch8.addGeometry(Part.LineSegment(App.Vector(64.002075, 21.5, 0), App.Vector(57, 21.5, 0)), False)
sketch8.addGeometry(Part.LineSegment(App.Vector(57, 21.5, 0), App.Vector(57, 31.5, 0)), False)
sketch8.addConstraint(Sketcher.Constraint("Coincident", 0, 2, 1, 1))
sketch8.addConstraint(Sketcher.Constraint("Coincident", 1, 2, 2, 1))
sketch8.addConstraint(Sketcher.Constraint("Coincident", 2, 2, 0, 1))
sketch8.addConstraint(Sketcher.Constraint("Horizontal", 1))
sketch8.addConstraint(Sketcher.Constraint("Vertical", 2))
sketch8.addConstraint(Sketcher.Constraint("DistanceY", 2, 1, 2, 2, Q("10 mm")))
sketch8.addConstraint(Sketcher.Constraint("Angle", 0, Q("-55 deg")))
sketch8.addConstraint(Sketcher.Constraint("DistanceX", -1, 1, 1, 2, Q("57 mm")))
sketch8.addConstraint(Sketcher.Constraint("DistanceY", -1, 1, 0, 2, Q("21.5 mm")))
sketch8.setExpression("Constraints[5]", "Params.sketch8_height")
pad4 = body.newObject("PartDesign::Pad", "Pad003")
pad4.Profile = sketch8
pad4.setExpression("Length", "Params.pad4_length")

# Sketch on YZ plane
sketch9 = body.newObject("Sketcher::SketchObject", "Sketch008")
sketch9.AttachmentSupport = (doc.getObject("YZ_Plane"), [""])
sketch9.MapMode = "FlatFace"
sketch9.AttachmentOffset = App.Placement(App.Vector(0, 0, 57), App.Rotation())
sketch9.addGeometry(Part.LineSegment(App.Vector(37.5, -3.464102, 0), App.Vector(31.5, 0, 0)), False)
sketch9.addGeometry(Part.LineSegment(App.Vector(31.5, 0, 0), App.Vector(31.5, -36.9, 0)), False)
sketch9.addGeometry(Part.LineSegment(App.Vector(31.5, -36.9, 0), App.Vector(37.5, -33.435898, 0)), False)
sketch9.addGeometry(Part.LineSegment(App.Vector(37.5, -33.435898, 0), App.Vector(37.5, -3.464102, 0)), False)
sketch9.addConstraint(Sketcher.Constraint("Coincident", 0, 2, 1, 1))
sketch9.addConstraint(Sketcher.Constraint("Coincident", 1, 2, 2, 1))
sketch9.addConstraint(Sketcher.Constraint("Coincident", 2, 2, 3, 1))
sketch9.addConstraint(Sketcher.Constraint("Coincident", 3, 2, 0, 1))
sketch9.addConstraint(Sketcher.Constraint("Vertical", 1))
sketch9.addConstraint(Sketcher.Constraint("Vertical", 3))
sketch9.addConstraint(Sketcher.Constraint("PointOnObject", 0, 2, -1))
sketch9.addConstraint(Sketcher.Constraint("Equal", 0, 2))
sketch9.addConstraint(Sketcher.Constraint("Angle", 0, Q("150 deg")))
sketch9.addConstraint(Sketcher.Constraint("DistanceY", 1, 2, 1, 1, Q("36.9 mm")))
sketch9.addConstraint(Sketcher.Constraint("DistanceX", 1, 2, 2, 2, Q("6 mm")))
sketch9.addConstraint(Sketcher.Constraint("DistanceX", -1, 1, 0, 2, Q("31.5 mm")))
sketch9.setExpression("Constraints[9]", "Params.sketch9_height")
pad5 = body.newObject("PartDesign::Pad", "Pad004")
pad5.Profile = sketch9
pad5.setExpression("Length", "Params.pad5_length")
pad5.Reversed = True

# Sketch on YZ plane
sketch10 = body.newObject("Sketcher::SketchObject", "Sketch009")
sketch10.AttachmentSupport = (doc.getObject("YZ_Plane"), [""])
sketch10.MapMode = "FlatFace"
sketch10.AttachmentOffset = App.Placement(App.Vector(0, 0, 57), App.Rotation())
sketch10.addGeometry(Part.Circle(App.Vector(33.2, -7.7, 0), App.Vector(0, 0, 1), 1.6), False)
sketch10.addGeometry(Part.Circle(App.Vector(33.2, -31.7, 0), App.Vector(0, 0, 1), 1.6), False)
sketch10.addGeometry(Part.Circle(App.Vector(9.2, -31.7, 0), App.Vector(0, 0, 1), 1.6), False)
sketch10.addGeometry(Part.Circle(App.Vector(9.2, -7.7, 0), App.Vector(0, 0, 1), 1.6), False)
sketch10.addGeometry(Part.Circle(App.Vector(21.2, -19.7, 0), App.Vector(0, 0, 1), 14), False)
sketch10.addConstraint(Sketcher.Constraint("Equal", 0, 1))
sketch10.addConstraint(Sketcher.Constraint("Equal", 1, 2))
sketch10.addConstraint(Sketcher.Constraint("Equal", 2, 3))
sketch10.addConstraint(Sketcher.Constraint("Horizontal", 1, 3, 2, 3))
sketch10.addConstraint(Sketcher.Constraint("Horizontal", 0, 3, 3, 3))
sketch10.addConstraint(Sketcher.Constraint("Vertical", 0, 3, 1, 3))
sketch10.addConstraint(Sketcher.Constraint("Vertical", 2, 3, 3, 3))
sketch10.addConstraint(Sketcher.Constraint("Diameter", 4, Q("28 mm")))
sketch10.addConstraint(Sketcher.Constraint("Diameter", 0, Q("3.2 mm")))
sketch10.addConstraint(Sketcher.Constraint("DistanceY", 1, 3, 0, 3, Q("24 mm")))
sketch10.addConstraint(Sketcher.Constraint("DistanceX", 2, 3, 1, 3, Q("24 mm")))
sketch10.addConstraint(Sketcher.Constraint("DistanceX", 2, 3, 4, 3, Q("12 mm")))
sketch10.addConstraint(Sketcher.Constraint("DistanceY", 2, 3, 4, 3, Q("12 mm")))
sketch10.addConstraint(Sketcher.Constraint("DistanceX", -1, 1, 0, 3, Q("33.2 mm")))
sketch10.addConstraint(Sketcher.Constraint("DistanceY", 0, 3, -1, 1, Q("7.7 mm")))
sketch10.setExpression("Constraints[7]", "Params.sketch10_diameter")
sketch10.setExpression("Constraints[8]", "Params.sketch10_diameter2")
pocket5 = body.newObject("PartDesign::Pocket", "Pocket004")
pocket5.Profile = sketch10
pocket5.setExpression("Length", "Params.pocket5_length")
doc.recompute()

fillet = body.newObject("PartDesign::Fillet", "Fillet")
fillet.Base = (pocket5, edges_at(pocket5, [
    (66, 0, -47.95),
    (61.5, 0, -34.9),
    (57, 0, -17.45),
    (28.5, 0, 0),
    (0, 0, -17.45),
    (-4.5, 0, -34.9),
    (-9, 0, -47.95),
    (66, 10.75, -61),
    (66, 10.75, -34.9),
    (57, 15.75, 0),
    (0, 15.75, 0),
    (0, 10.75, -34.9),
    (-9, 10.75, -34.9),
    (-9, 10.75, -61),
]))
fillet.setExpression("Radius", "Params.fillet_radius")

# Sketch on YZ plane
sketch11 = body.newObject("Sketcher::SketchObject", "Sketch010")
sketch11.AttachmentSupport = (doc.getObject("YZ_Plane"), [""])
sketch11.MapMode = "FlatFace"
sketch11.AttachmentOffset = App.Placement(App.Vector(0, 0, 66), App.Rotation())
sketch11.addGeometry(Part.Circle(App.Vector(8.56, -55.9, 0), App.Vector(0, 0, 1), 1.661198), False)
sketch11.addGeometry(Part.Circle(App.Vector(8.56, -49.4, 0), App.Vector(0, 0, 1), 1.661198), False)
sketch11.addConstraint(Sketcher.Constraint("Equal", 0, 1))
sketch11.addConstraint(Sketcher.Constraint("Vertical", 0, 3, 1, 3))
sketch11.addConstraint(Sketcher.Constraint("DistanceY", 0, 3, -1, 1, Q("55.9 mm")))
sketch11.addConstraint(Sketcher.Constraint("DistanceY", 1, 3, -1, 1, Q("49.4 mm")))
sketch11.addConstraint(Sketcher.Constraint("DistanceX", -1, 1, 0, 3, Q("8.56 mm")))
sketch11.addConstraint(Sketcher.Constraint("Diameter", 0, Q("3.322396 mm")))
pocket6 = body.newObject("PartDesign::Pocket", "Pocket005")
pocket6.Profile = sketch11
pocket6.setExpression("Length", "Params.pocket6_length")

# Sketch on YZ plane
sketch12 = body.newObject("Sketcher::SketchObject", "Sketch011")
sketch12.AttachmentSupport = (doc.getObject("YZ_Plane"), [""])
sketch12.MapMode = "FlatFace"
sketch12.AttachmentOffset = App.Placement(App.Vector(0, 0, 1), App.Rotation())
sketch12.addGeometry(Part.Circle(App.Vector(8.56, -55.9, 0), App.Vector(0, 0, 1), 1.661198), False)
sketch12.addGeometry(Part.Circle(App.Vector(8.56, -49.4, 0), App.Vector(0, 0, 1), 1.661198), False)
sketch12.addConstraint(Sketcher.Constraint("Equal", 0, 1))
sketch12.addConstraint(Sketcher.Constraint("Vertical", 0, 3, 1, 3))
sketch12.addConstraint(Sketcher.Constraint("DistanceY", 0, 3, -1, 1, Q("55.9 mm")))
sketch12.addConstraint(Sketcher.Constraint("DistanceY", 1, 3, -1, 1, Q("49.4 mm")))
sketch12.addConstraint(Sketcher.Constraint("DistanceX", -1, 1, 0, 3, Q("8.56 mm")))
sketch12.addConstraint(Sketcher.Constraint("Diameter", 0, Q("3.322396 mm")))
pocket7 = body.newObject("PartDesign::Pocket", "Pocket006")
pocket7.Profile = sketch12
pocket7.setExpression("Length", "Params.pocket7_length")

doc.recompute()
